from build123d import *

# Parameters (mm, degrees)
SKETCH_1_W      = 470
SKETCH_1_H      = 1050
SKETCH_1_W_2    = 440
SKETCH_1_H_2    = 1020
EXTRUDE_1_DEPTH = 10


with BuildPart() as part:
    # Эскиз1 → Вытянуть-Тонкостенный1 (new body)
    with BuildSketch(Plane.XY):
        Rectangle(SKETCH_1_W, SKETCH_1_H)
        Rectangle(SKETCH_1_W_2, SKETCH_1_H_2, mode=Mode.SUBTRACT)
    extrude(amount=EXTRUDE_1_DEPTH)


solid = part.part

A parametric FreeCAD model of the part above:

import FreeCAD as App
import Part
import Sketcher
from FreeCAD import Vector
Q = App.Units.Quantity

doc = App.newDocument("Part")
params = doc.addObject("Spreadsheet::Sheet", "Params")
for row, (alias, value) in enumerate([
    ("sketch1_width", "470 mm"),
    ("sketch1_width2", "440 mm"),
    ("sketch1_height", "1050 mm"),
    ("sketch1_height2", "1020 mm"),
    ("pad1_length", "10 mm"),
], start=1):
    params.set(f"A{row}", alias)
    params.set(f"B{row}", "=" + value)
    params.setAlias(f"B{row}", alias)

body = doc.addObject("PartDesign::Body", "Body")

# Sketch on XY plane
sketch1 = body.newObject("Sketcher::SketchObject", "Sketch")
sketch1.AttachmentSupport = (doc.getObject("XY_Plane"), [""])
sketch1.MapMode = "FlatFace"
sketch1.addGeometry([
    Part.LineSegment(Vector(-235, 525, 0), Vector(-235, -525, 0)),  # 0
    Part.LineSegment(Vector(-235, -525, 0), Vector(235, -525, 0)),  # 1
    Part.LineSegment(Vector(235, -525, 0), Vector(235, 525, 0)),  # 2
    Part.LineSegment(Vector(235, 525, 0), Vector(-235, 525, 0)),  # 3
    Part.LineSegment(Vector(220, -510, 0), Vector(-220, -510, 0)),  # 4
    Part.LineSegment(Vector(-220, -510, 0), Vector(-220, 510, 0)),  # 5
    Part.LineSegment(Vector(-220, 510, 0), Vector(220, 510, 0)),  # 6
    Part.LineSegment(Vector(220, 510, 0), Vector(220, -510, 0)),  # 7
], False)
sketch1.addConstraint([
    Sketcher.Constraint("Coincident", 0, 2, 1, 1),
    Sketcher.Constraint("Coincident", 1, 2, 2, 1),
    Sketcher.Constraint("Coincident", 2, 2, 3, 1),
    Sketcher.Constraint("Coincident", 3, 2, 0, 1),
    Sketcher.Constraint("Coincident", 4, 2, 5, 1),
    Sketcher.Constraint("Coincident", 5, 2, 6, 1),
    Sketcher.Constraint("Coincident", 6, 2, 7, 1),
    Sketcher.Constraint("Coincident", 7, 2, 4, 1),
    Sketcher.Constraint("Vertical", 0),
    Sketcher.Constraint("Horizontal", 1),
    Sketcher.Constraint("Vertical", 2),
    Sketcher.Constraint("Horizontal", 3),
    Sketcher.Constraint("Horizontal", 4),
    Sketcher.Constraint("Vertical", 5),
    Sketcher.Constraint("Horizontal", 6),
    Sketcher.Constraint("Vertical", 7),
    Sketcher.Constraint("Symmetric", 0, 2, 2, 2, -1, 1),
    Sketcher.Constraint("Symmetric", 4, 2, 6, 2, -1, 1),
    Sketcher.Constraint("DistanceX", 1, 1, 1, 2, Q("470 mm")),
    Sketcher.Constraint("DistanceX", 4, 2, 4, 1, Q("440 mm")),
    Sketcher.Constraint("DistanceY", 0, 2, 0, 1, Q("1050 mm")),
    Sketcher.Constraint("DistanceY", 5, 1, 5, 2, Q("1020 mm")),
])
sketch1.setExpression("Constraints[18]", "Params.sketch1_width")
sketch1.setExpression("Constraints[19]", "Params.sketch1_width2")
sketch1.setExpression("Constraints[20]", "Params.sketch1_height")
sketch1.setExpression("Constraints[21]", "Params.sketch1_height2")
pad1 = body.newObject("PartDesign::Pad", "Pad")
pad1.Profile = sketch1
pad1.setExpression("Length", "Params.pad1_length")

doc.recompute()
